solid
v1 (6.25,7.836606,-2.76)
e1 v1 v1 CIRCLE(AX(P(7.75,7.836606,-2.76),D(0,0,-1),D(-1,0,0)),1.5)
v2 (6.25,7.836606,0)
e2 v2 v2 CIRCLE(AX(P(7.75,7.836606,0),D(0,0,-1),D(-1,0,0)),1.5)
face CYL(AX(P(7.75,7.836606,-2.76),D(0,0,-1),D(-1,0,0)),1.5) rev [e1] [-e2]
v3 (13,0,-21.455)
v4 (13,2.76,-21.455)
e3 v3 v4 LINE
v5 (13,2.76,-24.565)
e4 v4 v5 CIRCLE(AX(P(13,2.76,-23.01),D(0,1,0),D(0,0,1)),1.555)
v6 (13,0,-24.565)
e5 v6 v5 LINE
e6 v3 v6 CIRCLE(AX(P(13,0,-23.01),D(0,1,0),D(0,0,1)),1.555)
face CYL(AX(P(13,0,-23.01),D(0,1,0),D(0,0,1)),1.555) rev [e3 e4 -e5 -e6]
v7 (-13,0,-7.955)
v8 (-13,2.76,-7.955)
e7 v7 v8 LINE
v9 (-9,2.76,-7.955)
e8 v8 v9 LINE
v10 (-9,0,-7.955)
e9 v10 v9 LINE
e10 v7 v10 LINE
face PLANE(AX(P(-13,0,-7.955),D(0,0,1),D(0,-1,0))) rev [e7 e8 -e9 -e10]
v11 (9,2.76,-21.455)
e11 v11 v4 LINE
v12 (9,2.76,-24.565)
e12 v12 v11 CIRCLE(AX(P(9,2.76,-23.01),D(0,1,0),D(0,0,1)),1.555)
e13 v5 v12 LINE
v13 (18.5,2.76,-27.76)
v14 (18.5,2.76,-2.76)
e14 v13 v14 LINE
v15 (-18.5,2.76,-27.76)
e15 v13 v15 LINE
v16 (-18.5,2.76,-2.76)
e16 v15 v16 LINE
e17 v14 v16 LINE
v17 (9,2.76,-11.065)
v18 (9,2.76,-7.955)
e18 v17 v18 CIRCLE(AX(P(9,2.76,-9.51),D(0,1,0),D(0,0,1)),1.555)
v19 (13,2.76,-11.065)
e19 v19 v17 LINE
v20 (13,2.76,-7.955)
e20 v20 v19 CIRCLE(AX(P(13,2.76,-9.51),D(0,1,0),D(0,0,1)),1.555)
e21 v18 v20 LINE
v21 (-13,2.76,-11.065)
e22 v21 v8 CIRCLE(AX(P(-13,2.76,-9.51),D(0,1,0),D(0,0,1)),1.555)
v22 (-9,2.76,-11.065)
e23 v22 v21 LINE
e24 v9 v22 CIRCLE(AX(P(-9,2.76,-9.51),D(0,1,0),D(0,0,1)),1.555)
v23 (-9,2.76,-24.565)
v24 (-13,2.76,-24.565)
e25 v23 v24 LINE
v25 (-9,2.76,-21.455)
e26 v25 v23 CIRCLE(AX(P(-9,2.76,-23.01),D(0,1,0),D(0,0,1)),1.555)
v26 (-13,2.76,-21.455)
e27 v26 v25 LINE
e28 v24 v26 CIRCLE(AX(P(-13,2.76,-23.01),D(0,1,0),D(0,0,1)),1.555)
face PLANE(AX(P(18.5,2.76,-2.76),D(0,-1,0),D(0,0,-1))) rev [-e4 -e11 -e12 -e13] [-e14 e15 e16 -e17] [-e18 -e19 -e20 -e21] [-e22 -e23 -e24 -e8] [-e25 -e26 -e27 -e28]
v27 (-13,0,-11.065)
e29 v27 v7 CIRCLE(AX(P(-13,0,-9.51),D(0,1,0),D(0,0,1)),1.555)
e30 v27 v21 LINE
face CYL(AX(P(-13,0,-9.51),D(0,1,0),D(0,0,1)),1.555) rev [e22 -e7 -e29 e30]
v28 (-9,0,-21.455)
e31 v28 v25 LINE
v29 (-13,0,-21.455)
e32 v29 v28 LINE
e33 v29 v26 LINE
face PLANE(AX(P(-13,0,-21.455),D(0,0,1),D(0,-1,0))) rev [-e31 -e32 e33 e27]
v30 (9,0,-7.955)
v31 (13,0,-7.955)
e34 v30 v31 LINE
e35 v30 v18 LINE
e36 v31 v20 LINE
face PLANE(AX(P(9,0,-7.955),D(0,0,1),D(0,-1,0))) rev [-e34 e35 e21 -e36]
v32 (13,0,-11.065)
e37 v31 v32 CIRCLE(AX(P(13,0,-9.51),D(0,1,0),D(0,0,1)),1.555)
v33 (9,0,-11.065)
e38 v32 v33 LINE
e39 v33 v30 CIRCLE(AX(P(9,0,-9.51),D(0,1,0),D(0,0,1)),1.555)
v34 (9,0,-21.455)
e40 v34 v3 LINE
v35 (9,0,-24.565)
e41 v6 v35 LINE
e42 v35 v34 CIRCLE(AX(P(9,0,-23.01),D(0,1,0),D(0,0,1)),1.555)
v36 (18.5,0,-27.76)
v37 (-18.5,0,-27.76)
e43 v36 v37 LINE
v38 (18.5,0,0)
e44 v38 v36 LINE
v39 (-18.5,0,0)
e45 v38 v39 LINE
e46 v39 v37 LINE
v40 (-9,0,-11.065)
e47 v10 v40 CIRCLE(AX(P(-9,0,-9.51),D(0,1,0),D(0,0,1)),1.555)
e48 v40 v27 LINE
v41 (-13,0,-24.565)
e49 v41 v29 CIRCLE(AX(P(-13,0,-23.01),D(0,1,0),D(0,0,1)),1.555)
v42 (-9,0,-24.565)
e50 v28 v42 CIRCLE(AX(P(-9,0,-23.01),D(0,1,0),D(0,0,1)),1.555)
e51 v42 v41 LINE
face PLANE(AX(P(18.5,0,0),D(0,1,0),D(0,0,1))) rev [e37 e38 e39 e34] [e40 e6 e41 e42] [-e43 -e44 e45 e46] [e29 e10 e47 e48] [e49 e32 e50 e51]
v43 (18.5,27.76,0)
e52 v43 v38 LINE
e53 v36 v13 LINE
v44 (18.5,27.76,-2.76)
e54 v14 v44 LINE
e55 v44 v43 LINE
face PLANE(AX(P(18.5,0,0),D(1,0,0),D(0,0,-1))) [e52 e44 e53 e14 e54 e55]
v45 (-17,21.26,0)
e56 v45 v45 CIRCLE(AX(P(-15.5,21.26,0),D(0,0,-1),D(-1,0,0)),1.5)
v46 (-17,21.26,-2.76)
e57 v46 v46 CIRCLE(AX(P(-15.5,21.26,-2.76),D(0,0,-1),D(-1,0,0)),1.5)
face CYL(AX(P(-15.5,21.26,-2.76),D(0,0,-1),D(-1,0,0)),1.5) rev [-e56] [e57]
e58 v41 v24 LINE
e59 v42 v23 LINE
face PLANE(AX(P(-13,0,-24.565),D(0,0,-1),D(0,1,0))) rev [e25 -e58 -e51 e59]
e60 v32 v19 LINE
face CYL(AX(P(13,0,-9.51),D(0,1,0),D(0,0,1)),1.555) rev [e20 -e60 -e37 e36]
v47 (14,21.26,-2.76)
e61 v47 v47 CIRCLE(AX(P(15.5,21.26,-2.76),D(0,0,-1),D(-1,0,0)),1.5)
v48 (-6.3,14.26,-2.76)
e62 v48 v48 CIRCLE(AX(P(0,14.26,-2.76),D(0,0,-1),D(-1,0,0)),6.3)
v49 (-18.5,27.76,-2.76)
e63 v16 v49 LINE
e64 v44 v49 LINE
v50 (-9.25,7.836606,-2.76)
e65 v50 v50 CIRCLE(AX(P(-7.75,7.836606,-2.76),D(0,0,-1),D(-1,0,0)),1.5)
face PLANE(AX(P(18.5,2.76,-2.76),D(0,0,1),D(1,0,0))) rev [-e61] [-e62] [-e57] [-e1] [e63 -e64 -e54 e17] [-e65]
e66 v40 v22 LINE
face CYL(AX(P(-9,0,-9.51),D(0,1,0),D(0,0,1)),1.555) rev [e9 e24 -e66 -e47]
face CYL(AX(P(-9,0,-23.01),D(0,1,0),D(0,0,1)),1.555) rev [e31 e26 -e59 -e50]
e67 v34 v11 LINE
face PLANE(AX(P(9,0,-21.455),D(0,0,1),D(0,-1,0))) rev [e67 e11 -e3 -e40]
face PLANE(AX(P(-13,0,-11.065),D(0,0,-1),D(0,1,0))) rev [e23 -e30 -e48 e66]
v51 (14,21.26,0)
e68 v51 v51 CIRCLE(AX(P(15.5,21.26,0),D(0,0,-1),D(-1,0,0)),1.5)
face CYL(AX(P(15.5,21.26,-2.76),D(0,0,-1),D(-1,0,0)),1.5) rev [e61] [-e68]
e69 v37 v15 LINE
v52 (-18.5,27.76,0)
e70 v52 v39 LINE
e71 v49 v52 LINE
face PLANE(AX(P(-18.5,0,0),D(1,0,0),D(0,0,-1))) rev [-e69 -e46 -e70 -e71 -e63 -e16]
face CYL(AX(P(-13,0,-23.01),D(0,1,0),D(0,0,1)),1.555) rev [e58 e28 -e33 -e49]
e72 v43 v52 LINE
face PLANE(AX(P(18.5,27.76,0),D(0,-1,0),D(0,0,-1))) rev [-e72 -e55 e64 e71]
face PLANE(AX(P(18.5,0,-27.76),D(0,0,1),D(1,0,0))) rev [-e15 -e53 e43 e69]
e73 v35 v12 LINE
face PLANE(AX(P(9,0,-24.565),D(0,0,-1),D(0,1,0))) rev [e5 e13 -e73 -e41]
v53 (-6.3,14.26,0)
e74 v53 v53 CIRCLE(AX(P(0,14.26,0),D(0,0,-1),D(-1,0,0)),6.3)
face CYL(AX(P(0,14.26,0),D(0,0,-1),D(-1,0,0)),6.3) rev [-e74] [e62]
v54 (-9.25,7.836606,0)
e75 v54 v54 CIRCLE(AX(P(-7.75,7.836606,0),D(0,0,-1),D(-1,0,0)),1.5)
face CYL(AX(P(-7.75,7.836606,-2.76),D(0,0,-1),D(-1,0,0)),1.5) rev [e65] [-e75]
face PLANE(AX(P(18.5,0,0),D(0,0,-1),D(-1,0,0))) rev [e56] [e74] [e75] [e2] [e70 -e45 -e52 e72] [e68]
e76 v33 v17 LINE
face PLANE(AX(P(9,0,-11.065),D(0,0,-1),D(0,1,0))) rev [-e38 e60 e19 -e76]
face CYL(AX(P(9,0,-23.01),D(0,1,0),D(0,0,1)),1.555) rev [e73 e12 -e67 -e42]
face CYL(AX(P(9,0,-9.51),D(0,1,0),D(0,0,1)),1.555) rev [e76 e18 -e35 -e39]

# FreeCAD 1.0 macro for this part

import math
import FreeCAD as App
import Part
import Sketcher
from FreeCAD import Vector
Q = App.Units.Quantity

doc = App.newDocument("Part")
params = doc.addObject("Spreadsheet::Sheet", "Params")
for row, (alias, value) in enumerate([
    ("sketch1_width", "25 mm"),
    ("sketch1_width2", "27.76 mm"),
    ("pad1_length", "37 mm"),
    ("sketch2_diameter", "12.6 mm"),
    ("sketch3_diameter", "3 mm"),
    ("hole_diameter", "3 mm"),
    ("hole_depth", "10 mm"),
    ("sketch4_width", "4 mm"),
], start=1):
    params.set(f"A{row}", alias)
    params.set(f"B{row}", "=" + value)
    params.setAlias(f"B{row}", alias)

body = doc.addObject("PartDesign::Body", "Body")

# Sketch on YZ plane
sketch1 = body.newObject("Sketcher::SketchObject", "Sketch")
sketch1.AttachmentSupport = (doc.getObject("YZ_Plane"), [""])
sketch1.MapMode = "FlatFace"
sketch1.addGeometry([
    Part.LineSegment(Vector(27.8, 0, 0), Vector(0, 0, 0)),  # 0
    Part.LineSegment(Vector(0, 0, 0), Vector(0, -27.8, 0)),  # 1
    Part.LineSegment(Vector(0, -27.8, 0), Vector(2.8, -27.8, 0)),  # 2
    Part.LineSegment(Vector(2.8, -27.8, 0), Vector(2.8, -2.8, 0)),  # 3
    Part.LineSegment(Vector(2.8, -2.8, 0), Vector(27.8, -2.8, 0)),  # 4
    Part.LineSegment(Vector(27.8, -2.8, 0), Vector(27.8, 0, 0)),  # 5
], False)
sketch1.addConstraint([
    Sketcher.Constraint("Coincident", 0, 2, 1, 1),
    Sketcher.Constraint("Coincident", 1, 2, 2, 1),
    Sketcher.Constraint("Coincident", 2, 2, 3, 1),
    Sketcher.Constraint("Coincident", 3, 2, 4, 1),
    Sketcher.Constraint("Coincident", 4, 2, 5, 1),
    Sketcher.Constraint("Coincident", 5, 2, 0, 1),
    Sketcher.Constraint("Horizontal", 0),
    Sketcher.Constraint("Vertical", 1),
    Sketcher.Constraint("Horizontal", 2),
    Sketcher.Constraint("Vertical", 3),
    Sketcher.Constraint("Horizontal", 4),
    Sketcher.Constraint("Vertical", 5),
    Sketcher.Constraint("Coincident", 0, 2, -1, 1),
    Sketcher.Constraint("Equal", 0, 1),
    Sketcher.Constraint("Equal", 4, 3),
    Sketcher.Constraint("DistanceX", 4, 1, 4, 2, Q("25 mm")),
    Sketcher.Constraint("DistanceX", 0, 2, 0, 1, Q("27.76 mm")),
])
sketch1.setExpression("Constraints[15]", "Params.sketch1_width")
sketch1.setExpression("Constraints[16]", "Params.sketch1_width2")
pad1 = body.newObject("PartDesign::Pad", "Pad")
pad1.Profile = sketch1
pad1.setExpression("Length", "Params.pad1_length")
pad1.Midplane = True

# Sketch on XY plane
sketch2 = body.newObject("Sketcher::SketchObject", "Sketch001")
sketch2.AttachmentSupport = (doc.getObject("XY_Plane"), [""])
sketch2.MapMode = "FlatFace"
sketch2.AttachmentOffset = App.Placement(Vector(0, 0, -2.76), App.Rotation())
sketch2.addGeometry(Part.Circle(Vector(0, 14, 0), Vector(0, 0, 1), 6), False)
sketch2.addConstraint([
    Sketcher.Constraint("PointOnObject", 0, 3, -2),
    Sketcher.Constraint("Diameter", 0, Q("12.6 mm")),
    Sketcher.Constraint("DistanceY", -1, 1, 0, 3, Q("14.26 mm")),
])
sketch2.setExpression("Constraints[1]", "Params.sketch2_diameter")
pocket1 = body.newObject("PartDesign::Pocket", "Pocket")
pocket1.Profile = sketch2
pocket1.Type = "ThroughAll"
pocket1.Reversed = True

# Sketch on XY plane
sketch3 = body.newObject("Sketcher::SketchObject", "Sketch002")
sketch3.AttachmentSupport = (doc.getObject("XY_Plane"), [""])
sketch3.MapMode = "FlatFace"
sketch3.AttachmentOffset = App.Placement(Vector(0, 0, -2.76), App.Rotation())
sketch3.addGeometry([
    Part.Circle(Vector(-15.5, 21.3, 0), Vector(0, 0, 1), 1.5),
    Part.Circle(Vector(-7.8, 7.8, 0), Vector(0, 0, 1), 1.5),
    Part.Circle(Vector(7.8, 7.8, 0), Vector(0, 0, 1), 1.5),
    Part.Circle(Vector(15.5, 21.3, 0), Vector(0, 0, 1), 1.5),
], False)
sketch3.addConstraint([
    Sketcher.Constraint("Equal", 0, 1),
    Sketcher.Constraint("Equal", 1, 2),
    Sketcher.Constraint("Equal", 2, 3),
    Sketcher.Constraint("Symmetric", 1, 3, 2, 3, -2),
    Sketcher.Constraint("Symmetric", 0, 3, 3, 3, -2),
    Sketcher.Constraint("Diameter", 0, Q("3 mm")),
    Sketcher.Constraint("DistanceX", 0, 3, 3, 3, Q("31 mm")),
    Sketcher.Constraint("DistanceX", 1, 3, 2, 3, Q("15.5 mm")),
    Sketcher.Constraint("DistanceY", -1, 1, 0, 3, Q("21.26 mm")),
    Sketcher.Constraint("DistanceY", -1, 1, 1, 3, Q("7.836606 mm")),
])
sketch3.setExpression("Constraints[5]", "Params.sketch3_diameter")
doc.recompute()
hole = body.newObject("PartDesign::Hole", "Hole")
hole.Profile = sketch3
hole.ThreadType = "None"
hole.setExpression("Diameter", "Params.hole_diameter")
hole.DepthType = "Dimension"
hole.setExpression("Depth", "Params.hole_depth")
hole.DrillPoint = "Angled"
hole.DrillPointAngle = 118
hole.Reversed = True

# Sketch on XZ plane
sketch4 = body.newObject("Sketcher::SketchObject", "Sketch003")
sketch4.AttachmentSupport = (doc.getObject("XZ_Plane"), [""])
sketch4.MapMode = "FlatFace"
sketch4.AttachmentOffset = App.Placement(Vector(0, 0, -2.76), App.Rotation())
sketch4.addGeometry([
    Part.LineSegment(Vector(-9, -24.6, 0), Vector(-13, -24.6, 0)),  # 0
    Part.ArcOfCircle(Part.Circle(Vector(-13, -23, 0), Vector(0, 0, 1), 1.6), math.radians(90), math.radians(270)),  # 1
    Part.LineSegment(Vector(-13, -21.5, 0), Vector(-9, -21.5, 0)),  # 2
    Part.ArcOfCircle(Part.Circle(Vector(-9, -23, 0), Vector(0, 0, 1), 1.6), math.radians(-90), math.radians(90)),  # 3
    Part.LineSegment(Vector(-9, -11.1, 0), Vector(-13, -11.1, 0)),  # 4
    Part.ArcOfCircle(Part.Circle(Vector(-13, -9.5, 0), Vector(0, 0, 1), 1.6), math.radians(90), math.radians(270)),  # 5
    Part.LineSegment(Vector(-13, -8, 0), Vector(-9, -8, 0)),  # 6
    Part.ArcOfCircle(Part.Circle(Vector(-9, -9.5, 0), Vector(0, 0, 1), 1.6), math.radians(-90), math.radians(90)),  # 7
    Part.LineSegment(Vector(13, -11.1, 0), Vector(9, -11.1, 0)),  # 8
    Part.ArcOfCircle(Part.Circle(Vector(9, -9.5, 0), Vector(0, 0, 1), 1.6), math.radians(90), math.radians(270)),  # 9
    Part.LineSegment(Vector(9, -8, 0), Vector(13, -8, 0)),  # 10
    Part.ArcOfCircle(Part.Circle(Vector(13, -9.5, 0), Vector(0, 0, 1), 1.6), math.radians(-90), math.radians(90)),  # 11
    Part.LineSegment(Vector(13, -24.6, 0), Vector(9, -24.6, 0)),  # 12
    Part.ArcOfCircle(Part.Circle(Vector(9, -23, 0), Vector(0, 0, 1), 1.6), math.radians(90), math.radians(270)),  # 13
    Part.LineSegment(Vector(9, -21.5, 0), Vector(13, -21.5, 0)),  # 14
    Part.ArcOfCircle(Part.Circle(Vector(13, -23, 0), Vector(0, 0, 1), 1.6), math.radians(-90), math.radians(90)),  # 15
], False)
sketch4.addConstraint([
    Sketcher.Constraint("Tangent", 0, 2, 1, 2),
    Sketcher.Constraint("Tangent", 1, 1, 2, 1),
    Sketcher.Constraint("Tangent", 2, 2, 3, 2),
    Sketcher.Constraint("Tangent", 3, 1, 0, 1),
    Sketcher.Constraint("Tangent", 4, 2, 5, 2),
    Sketcher.Constraint("Tangent", 5, 1, 6, 1),
    Sketcher.Constraint("Tangent", 6, 2, 7, 2),
    Sketcher.Constraint("Tangent", 7, 1, 4, 1),
    Sketcher.Constraint("Tangent", 8, 2, 9, 2),
    Sketcher.Constraint("Tangent", 9, 1, 10, 1),
    Sketcher.Constraint("Tangent", 10, 2, 11, 2),
    Sketcher.Constraint("Tangent", 11, 1, 8, 1),
    Sketcher.Constraint("Tangent", 12, 2, 13, 2),
    Sketcher.Constraint("Tangent", 13, 1, 14, 1),
    Sketcher.Constraint("Tangent", 14, 2, 15, 2),
    Sketcher.Constraint("Tangent", 15, 1, 12, 1),
    Sketcher.Constraint("Horizontal", 0),
    Sketcher.Constraint("Horizontal", 2),
    Sketcher.Constraint("Horizontal", 4),
    Sketcher.Constraint("Horizontal", 6),
    Sketcher.Constraint("Horizontal", 8),
    Sketcher.Constraint("Horizontal", 10),
    Sketcher.Constraint("Horizontal", 12),
    Sketcher.Constraint("Horizontal", 14),
    Sketcher.Constraint("Equal", 3, 5),
    Sketcher.Constraint("Equal", 7, 9),
    Sketcher.Constraint("Equal", 11, 13),
    Sketcher.Constraint("Symmetric", 7, 3, 9, 3, -2),
    Sketcher.Constraint("Symmetric", 3, 3, 13, 3, -2),
    Sketcher.Constraint("Vertical", 1, 3, 5, 3),
    Sketcher.Constraint("Vertical", 3, 3, 7, 3),
    Sketcher.Constraint("Vertical", 11, 3, 15, 3),
    Sketcher.Constraint("Equal", 6, 8),
    Sketcher.Constraint("DistanceX", 0, 2, 0, 1, Q("4 mm")),
    Sketcher.Constraint("DistanceX", 1, 3, -1, 1, Q("13 mm")),
    Sketcher.Constraint("Radius", 1, Q("1.555 mm")),
    Sketcher.Constraint("DistanceY", 1, 3, 5, 3, Q("13.5 mm")),
    Sketcher.Constraint("DistanceY", 1, 3, -1, 1, Q("23.01 mm")),
])
sketch4.setExpression("Constraints[33]", "Params.sketch4_width")
pocket2 = body.newObject("PartDesign::Pocket", "Pocket001")
pocket2.Profile = sketch4
pocket2.Type = "ThroughAll"
pocket2.Reversed = True

doc.recompute()
